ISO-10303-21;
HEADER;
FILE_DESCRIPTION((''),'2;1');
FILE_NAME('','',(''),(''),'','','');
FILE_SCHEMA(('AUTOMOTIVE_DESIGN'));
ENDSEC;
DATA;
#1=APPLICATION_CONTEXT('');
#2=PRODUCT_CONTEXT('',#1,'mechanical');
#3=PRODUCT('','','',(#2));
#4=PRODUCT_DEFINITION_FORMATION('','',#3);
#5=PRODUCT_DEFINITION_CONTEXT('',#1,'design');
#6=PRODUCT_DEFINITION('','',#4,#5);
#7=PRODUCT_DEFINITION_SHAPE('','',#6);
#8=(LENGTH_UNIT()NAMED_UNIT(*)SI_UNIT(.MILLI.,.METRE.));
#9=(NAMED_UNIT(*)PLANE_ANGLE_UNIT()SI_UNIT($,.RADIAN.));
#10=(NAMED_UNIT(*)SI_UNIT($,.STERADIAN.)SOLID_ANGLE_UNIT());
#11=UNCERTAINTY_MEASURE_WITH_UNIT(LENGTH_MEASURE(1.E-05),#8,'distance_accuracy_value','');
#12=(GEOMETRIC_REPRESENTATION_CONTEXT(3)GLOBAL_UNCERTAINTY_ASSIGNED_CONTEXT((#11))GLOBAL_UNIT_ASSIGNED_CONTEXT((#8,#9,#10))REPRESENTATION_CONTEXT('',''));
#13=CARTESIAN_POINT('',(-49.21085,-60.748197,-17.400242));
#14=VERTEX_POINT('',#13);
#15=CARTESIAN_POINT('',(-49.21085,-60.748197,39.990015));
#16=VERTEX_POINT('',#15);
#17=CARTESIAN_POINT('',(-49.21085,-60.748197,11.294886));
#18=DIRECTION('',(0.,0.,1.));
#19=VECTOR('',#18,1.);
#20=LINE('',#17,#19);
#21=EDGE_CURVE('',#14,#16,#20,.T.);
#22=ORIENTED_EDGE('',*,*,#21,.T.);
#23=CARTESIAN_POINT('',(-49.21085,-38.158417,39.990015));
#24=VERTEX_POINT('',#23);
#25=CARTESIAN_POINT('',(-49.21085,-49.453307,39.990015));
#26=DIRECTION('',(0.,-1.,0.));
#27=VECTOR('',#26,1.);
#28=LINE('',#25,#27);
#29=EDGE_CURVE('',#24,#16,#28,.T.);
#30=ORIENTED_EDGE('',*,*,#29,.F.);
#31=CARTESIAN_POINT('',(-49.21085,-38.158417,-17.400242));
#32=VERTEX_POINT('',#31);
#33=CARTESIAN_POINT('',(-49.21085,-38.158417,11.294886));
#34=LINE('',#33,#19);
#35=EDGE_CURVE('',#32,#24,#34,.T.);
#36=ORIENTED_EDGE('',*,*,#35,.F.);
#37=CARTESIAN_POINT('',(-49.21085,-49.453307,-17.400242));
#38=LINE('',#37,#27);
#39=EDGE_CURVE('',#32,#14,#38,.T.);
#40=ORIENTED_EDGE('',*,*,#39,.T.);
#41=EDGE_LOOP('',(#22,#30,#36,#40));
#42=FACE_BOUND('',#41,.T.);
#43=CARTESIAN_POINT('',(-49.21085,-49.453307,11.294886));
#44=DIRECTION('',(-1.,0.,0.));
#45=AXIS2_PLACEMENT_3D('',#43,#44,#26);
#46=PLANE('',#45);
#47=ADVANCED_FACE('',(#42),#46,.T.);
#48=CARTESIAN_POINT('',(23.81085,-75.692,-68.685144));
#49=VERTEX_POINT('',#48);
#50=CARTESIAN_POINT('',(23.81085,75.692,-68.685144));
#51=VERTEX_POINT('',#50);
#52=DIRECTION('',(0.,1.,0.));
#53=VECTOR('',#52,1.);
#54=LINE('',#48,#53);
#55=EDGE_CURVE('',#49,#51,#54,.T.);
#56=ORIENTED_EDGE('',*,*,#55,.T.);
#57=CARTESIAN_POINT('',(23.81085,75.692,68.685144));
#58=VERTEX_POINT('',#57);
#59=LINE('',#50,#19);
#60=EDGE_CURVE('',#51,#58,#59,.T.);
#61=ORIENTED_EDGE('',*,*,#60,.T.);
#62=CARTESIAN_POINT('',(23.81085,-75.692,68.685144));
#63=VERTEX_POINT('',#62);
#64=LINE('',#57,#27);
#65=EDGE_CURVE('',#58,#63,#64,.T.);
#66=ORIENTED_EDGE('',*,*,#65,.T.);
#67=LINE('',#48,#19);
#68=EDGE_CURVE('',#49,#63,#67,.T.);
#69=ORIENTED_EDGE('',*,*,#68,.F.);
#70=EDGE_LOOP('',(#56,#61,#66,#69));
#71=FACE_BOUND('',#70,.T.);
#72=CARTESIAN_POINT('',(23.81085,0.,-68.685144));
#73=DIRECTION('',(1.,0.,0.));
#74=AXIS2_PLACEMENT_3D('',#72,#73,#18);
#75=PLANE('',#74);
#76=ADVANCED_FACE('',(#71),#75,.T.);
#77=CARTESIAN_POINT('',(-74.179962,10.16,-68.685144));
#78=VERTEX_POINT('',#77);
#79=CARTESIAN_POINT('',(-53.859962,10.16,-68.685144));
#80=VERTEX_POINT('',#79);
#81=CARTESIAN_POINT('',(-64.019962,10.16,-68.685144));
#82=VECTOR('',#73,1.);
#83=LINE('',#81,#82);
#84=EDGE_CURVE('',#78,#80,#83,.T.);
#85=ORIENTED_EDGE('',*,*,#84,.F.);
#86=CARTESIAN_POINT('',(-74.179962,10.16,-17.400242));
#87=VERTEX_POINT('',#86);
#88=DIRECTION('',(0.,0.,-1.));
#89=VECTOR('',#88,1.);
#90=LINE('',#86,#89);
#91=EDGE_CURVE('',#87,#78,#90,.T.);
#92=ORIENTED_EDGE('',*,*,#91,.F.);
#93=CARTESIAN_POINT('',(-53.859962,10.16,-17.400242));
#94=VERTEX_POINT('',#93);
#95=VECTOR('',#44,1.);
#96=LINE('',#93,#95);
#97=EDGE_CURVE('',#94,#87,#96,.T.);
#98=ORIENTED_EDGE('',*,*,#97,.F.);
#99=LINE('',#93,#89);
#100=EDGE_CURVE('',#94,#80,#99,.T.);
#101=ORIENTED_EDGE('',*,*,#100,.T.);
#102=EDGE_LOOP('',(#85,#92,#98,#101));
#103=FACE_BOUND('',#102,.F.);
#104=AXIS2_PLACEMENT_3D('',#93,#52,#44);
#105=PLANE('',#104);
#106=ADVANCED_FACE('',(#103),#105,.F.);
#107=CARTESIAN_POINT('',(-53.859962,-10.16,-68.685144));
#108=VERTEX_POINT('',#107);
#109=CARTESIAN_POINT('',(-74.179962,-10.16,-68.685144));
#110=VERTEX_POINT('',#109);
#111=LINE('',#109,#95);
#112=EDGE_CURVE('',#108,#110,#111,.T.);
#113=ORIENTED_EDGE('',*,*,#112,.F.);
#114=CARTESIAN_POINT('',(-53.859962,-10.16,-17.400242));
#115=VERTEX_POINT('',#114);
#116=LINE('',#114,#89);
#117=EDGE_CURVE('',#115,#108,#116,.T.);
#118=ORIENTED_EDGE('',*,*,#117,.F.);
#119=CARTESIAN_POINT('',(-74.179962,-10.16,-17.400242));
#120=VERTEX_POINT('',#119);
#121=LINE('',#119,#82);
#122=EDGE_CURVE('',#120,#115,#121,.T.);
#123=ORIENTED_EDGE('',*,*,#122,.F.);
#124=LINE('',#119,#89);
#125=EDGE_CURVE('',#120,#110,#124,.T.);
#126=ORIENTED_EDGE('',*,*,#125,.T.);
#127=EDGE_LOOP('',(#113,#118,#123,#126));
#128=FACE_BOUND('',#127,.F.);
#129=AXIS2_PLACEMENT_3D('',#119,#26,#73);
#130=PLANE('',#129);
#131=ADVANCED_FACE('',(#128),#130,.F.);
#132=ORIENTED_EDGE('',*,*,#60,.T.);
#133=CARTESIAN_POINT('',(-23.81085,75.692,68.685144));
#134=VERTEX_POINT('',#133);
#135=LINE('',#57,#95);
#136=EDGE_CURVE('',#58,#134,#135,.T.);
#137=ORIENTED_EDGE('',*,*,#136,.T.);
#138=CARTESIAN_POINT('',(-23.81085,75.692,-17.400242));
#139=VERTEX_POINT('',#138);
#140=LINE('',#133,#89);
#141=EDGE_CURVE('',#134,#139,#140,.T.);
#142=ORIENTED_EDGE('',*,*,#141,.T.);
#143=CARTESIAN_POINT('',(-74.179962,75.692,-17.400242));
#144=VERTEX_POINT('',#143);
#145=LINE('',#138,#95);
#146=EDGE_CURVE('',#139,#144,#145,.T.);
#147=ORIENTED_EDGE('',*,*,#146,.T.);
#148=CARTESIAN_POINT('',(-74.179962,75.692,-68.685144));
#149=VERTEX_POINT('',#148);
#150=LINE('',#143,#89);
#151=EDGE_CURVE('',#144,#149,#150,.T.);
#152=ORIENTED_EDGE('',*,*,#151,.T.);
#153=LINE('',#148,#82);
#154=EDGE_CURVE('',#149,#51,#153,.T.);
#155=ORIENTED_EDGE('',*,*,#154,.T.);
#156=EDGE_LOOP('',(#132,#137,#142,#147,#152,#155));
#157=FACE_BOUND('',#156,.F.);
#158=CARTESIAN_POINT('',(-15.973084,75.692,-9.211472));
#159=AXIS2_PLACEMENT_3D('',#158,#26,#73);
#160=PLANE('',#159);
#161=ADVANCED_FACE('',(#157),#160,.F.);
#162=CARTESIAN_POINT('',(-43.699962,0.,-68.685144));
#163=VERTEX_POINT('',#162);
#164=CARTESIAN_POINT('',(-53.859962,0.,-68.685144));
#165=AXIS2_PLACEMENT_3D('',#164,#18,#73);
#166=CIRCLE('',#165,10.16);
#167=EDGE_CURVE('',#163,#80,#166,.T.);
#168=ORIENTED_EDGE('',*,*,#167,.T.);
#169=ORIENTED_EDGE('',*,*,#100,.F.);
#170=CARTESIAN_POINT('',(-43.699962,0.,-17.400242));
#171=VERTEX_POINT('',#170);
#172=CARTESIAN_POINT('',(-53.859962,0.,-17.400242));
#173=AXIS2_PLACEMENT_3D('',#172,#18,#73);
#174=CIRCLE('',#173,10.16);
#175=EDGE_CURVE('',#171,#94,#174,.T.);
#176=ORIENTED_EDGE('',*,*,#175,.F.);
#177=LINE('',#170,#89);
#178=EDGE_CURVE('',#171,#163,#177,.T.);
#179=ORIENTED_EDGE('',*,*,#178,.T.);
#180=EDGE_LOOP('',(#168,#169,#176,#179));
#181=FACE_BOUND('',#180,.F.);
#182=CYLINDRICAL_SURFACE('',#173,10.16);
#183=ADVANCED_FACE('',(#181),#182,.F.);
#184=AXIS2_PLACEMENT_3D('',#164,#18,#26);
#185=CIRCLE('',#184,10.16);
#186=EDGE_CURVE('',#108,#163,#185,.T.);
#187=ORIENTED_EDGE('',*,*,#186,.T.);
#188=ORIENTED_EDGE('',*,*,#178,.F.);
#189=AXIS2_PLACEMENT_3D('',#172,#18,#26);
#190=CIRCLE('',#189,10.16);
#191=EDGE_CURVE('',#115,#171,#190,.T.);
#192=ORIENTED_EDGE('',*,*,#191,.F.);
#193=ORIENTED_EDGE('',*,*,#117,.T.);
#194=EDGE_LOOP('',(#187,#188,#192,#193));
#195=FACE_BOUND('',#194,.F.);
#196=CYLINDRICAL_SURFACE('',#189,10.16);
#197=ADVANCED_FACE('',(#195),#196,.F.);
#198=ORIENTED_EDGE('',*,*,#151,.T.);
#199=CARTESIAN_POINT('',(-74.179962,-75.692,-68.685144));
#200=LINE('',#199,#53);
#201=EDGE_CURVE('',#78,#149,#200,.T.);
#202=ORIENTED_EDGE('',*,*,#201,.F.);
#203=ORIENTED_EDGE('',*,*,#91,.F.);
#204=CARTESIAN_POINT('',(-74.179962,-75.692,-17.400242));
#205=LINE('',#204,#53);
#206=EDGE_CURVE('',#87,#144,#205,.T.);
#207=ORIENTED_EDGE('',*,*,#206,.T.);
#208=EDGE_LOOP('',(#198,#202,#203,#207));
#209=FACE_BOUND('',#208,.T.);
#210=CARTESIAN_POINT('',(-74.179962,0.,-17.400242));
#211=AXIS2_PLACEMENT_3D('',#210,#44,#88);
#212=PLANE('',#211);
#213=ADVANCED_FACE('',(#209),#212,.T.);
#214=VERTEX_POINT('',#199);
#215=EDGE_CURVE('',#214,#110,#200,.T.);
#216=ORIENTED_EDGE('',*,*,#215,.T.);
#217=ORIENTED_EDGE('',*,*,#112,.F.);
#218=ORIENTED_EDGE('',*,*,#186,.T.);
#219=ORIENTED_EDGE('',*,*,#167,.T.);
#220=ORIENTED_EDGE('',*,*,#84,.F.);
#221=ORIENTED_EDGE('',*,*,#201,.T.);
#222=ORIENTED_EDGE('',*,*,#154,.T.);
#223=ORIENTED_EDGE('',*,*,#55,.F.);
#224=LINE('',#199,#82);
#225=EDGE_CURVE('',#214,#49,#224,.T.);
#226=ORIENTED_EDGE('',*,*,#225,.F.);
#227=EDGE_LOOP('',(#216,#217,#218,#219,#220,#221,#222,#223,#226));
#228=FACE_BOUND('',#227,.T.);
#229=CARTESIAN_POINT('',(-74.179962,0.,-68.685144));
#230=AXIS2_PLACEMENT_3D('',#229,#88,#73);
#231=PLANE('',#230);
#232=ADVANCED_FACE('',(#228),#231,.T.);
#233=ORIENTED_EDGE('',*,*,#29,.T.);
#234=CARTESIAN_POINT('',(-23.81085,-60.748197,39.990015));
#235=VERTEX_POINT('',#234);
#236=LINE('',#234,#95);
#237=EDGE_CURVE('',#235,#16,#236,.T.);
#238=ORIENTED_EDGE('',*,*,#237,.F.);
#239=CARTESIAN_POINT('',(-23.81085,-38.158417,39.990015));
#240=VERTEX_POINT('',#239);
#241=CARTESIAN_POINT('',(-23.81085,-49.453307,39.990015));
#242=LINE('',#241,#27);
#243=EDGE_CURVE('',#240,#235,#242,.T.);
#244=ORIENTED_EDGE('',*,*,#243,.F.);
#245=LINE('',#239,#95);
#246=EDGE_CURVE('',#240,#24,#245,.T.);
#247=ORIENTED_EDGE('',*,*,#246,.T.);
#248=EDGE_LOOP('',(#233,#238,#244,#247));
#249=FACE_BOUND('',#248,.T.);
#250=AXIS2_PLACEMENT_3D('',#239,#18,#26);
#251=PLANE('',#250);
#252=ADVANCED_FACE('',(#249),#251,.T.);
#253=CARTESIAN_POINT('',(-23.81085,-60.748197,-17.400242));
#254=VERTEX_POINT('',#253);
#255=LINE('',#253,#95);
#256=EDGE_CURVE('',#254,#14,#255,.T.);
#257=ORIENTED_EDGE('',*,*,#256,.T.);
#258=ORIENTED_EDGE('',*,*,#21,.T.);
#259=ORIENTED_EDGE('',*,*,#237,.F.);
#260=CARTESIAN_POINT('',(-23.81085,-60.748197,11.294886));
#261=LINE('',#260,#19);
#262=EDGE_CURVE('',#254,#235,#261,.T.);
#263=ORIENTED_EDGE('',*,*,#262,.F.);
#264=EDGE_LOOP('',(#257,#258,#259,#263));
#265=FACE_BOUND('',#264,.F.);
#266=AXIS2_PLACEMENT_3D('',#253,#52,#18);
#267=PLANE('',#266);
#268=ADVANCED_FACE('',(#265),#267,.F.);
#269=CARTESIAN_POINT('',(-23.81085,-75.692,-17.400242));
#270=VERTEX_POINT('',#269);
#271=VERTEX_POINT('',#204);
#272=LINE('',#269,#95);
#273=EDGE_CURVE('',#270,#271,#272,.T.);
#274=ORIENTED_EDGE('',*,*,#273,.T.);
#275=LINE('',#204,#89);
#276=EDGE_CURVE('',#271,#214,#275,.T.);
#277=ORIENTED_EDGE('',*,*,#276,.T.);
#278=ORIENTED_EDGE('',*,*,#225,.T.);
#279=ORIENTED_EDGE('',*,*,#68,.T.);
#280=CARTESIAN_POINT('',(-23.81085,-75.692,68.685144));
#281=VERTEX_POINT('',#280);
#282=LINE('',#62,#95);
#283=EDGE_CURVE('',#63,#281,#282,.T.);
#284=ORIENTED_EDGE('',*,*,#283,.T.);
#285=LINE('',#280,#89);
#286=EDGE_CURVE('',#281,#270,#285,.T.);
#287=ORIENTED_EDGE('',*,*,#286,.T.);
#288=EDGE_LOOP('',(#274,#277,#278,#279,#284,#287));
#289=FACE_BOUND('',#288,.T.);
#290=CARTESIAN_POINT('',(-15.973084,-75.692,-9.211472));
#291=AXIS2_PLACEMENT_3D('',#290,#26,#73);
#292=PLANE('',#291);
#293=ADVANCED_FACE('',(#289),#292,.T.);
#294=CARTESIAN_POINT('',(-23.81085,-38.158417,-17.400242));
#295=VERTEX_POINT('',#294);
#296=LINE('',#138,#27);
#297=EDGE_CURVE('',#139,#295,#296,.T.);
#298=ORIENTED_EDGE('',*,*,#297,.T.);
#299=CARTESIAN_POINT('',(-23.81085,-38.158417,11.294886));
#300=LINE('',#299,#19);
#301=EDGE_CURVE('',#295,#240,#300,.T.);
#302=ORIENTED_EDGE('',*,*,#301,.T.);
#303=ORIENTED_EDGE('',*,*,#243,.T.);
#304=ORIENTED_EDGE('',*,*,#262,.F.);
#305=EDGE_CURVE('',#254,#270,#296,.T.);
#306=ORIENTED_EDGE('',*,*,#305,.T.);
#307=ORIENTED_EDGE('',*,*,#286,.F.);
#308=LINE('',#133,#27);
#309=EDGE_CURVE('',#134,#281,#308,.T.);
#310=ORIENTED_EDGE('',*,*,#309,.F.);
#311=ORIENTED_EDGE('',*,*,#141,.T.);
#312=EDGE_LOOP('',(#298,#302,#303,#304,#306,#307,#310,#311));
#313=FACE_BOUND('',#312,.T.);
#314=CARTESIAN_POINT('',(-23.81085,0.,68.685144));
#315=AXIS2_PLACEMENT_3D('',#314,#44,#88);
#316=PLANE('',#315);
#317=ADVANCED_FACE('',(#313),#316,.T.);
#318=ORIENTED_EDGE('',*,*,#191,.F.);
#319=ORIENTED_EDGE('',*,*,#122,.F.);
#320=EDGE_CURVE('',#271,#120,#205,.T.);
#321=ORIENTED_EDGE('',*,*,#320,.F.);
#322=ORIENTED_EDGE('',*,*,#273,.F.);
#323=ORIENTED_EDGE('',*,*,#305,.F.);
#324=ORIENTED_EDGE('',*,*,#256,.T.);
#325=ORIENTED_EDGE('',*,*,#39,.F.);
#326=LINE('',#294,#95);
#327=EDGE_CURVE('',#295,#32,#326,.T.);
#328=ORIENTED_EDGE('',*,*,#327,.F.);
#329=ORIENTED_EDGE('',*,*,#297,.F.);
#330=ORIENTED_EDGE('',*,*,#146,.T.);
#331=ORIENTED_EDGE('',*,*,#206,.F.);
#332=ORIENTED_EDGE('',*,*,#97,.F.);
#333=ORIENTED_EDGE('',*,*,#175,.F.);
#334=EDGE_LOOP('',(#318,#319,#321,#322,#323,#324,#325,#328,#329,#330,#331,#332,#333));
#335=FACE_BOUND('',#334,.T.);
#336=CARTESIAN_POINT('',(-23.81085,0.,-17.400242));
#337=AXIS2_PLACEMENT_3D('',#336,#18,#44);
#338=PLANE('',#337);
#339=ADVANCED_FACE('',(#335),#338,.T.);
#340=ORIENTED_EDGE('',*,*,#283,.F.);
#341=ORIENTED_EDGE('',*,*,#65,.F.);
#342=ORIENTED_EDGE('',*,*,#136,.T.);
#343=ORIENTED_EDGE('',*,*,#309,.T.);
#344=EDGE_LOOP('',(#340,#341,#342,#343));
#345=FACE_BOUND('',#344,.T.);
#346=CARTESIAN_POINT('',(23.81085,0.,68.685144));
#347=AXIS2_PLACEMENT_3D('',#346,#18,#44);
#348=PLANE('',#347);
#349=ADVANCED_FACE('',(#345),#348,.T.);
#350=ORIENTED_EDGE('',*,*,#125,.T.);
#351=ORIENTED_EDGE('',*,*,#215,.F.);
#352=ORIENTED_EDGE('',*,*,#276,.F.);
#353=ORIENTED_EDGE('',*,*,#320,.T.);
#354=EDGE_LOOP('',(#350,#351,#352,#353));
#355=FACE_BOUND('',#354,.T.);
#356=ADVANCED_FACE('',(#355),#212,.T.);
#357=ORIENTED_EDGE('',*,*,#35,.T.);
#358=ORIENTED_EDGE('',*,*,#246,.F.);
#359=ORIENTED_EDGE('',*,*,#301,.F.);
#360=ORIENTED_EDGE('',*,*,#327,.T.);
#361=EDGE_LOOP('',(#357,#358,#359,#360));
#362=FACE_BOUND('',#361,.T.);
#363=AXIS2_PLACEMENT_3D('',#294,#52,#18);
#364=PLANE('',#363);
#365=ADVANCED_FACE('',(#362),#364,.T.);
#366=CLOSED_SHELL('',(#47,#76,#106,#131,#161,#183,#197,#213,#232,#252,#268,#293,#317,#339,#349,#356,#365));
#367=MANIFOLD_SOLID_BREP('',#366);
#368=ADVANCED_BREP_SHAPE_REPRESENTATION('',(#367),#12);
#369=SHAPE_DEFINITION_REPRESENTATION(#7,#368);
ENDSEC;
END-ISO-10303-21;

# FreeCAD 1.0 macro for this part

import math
import FreeCAD as App
import Part
import Sketcher

V = App.Vector
Q = App.Units.Quantity

doc = App.newDocument("Part")
params = doc.addObject("Spreadsheet::Sheet", "Params")
for row, (alias, value) in enumerate([
    ("pad1_length", "5.96 in"),
    ("sketch2_radius", "0.4 in"),
    ("pad2_length", "1 in"),
], start=1):
    params.set(f"A{row}", alias)
    params.set(f"B{row}", "=" + value)
    params.setAlias(f"B{row}", alias)

body = doc.addObject("PartDesign::Body", "Body")

# Sketch on XZ plane
sketch1 = doc.addObject("Sketcher::SketchObject", "Sketch")
body.addObject(sketch1)
sketch1.AttachmentSupport = (doc.XZ_Plane, [""])
sketch1.MapMode = "FlatFace"
sketch1.addGeometry(Part.LineSegment(V(24, -69, 0), V(24, 69, 0)), False)
sketch1.addGeometry(Part.LineSegment(V(24, 69, 0), V(-24, 69, 0)), False)
sketch1.addGeometry(Part.LineSegment(V(-24, 69, 0), V(-24, -17, 0)), False)
sketch1.addGeometry(Part.LineSegment(V(-24, -17, 0), V(-74, -17, 0)), False)
sketch1.addGeometry(Part.LineSegment(V(-74, -17, 0), V(-74, -69, 0)), False)
sketch1.addGeometry(Part.LineSegment(V(-74, -69, 0), V(24, -69, 0)), False)
sketch1.addConstraint(Sketcher.Constraint("Coincident", 0, 2, 1, 1))
sketch1.addConstraint(Sketcher.Constraint("Coincident", 1, 2, 2, 1))
sketch1.addConstraint(Sketcher.Constraint("Coincident", 2, 2, 3, 1))
sketch1.addConstraint(Sketcher.Constraint("Coincident", 3, 2, 4, 1))
sketch1.addConstraint(Sketcher.Constraint("Coincident", 4, 2, 5, 1))
sketch1.addConstraint(Sketcher.Constraint("Coincident", 5, 2, 0, 1))
sketch1.addConstraint(Sketcher.Constraint("Vertical", 0))
sketch1.addConstraint(Sketcher.Constraint("Horizontal", 1))
sketch1.addConstraint(Sketcher.Constraint("Vertical", 2))
sketch1.addConstraint(Sketcher.Constraint("Horizontal", 3))
sketch1.addConstraint(Sketcher.Constraint("Vertical", 4))
sketch1.addConstraint(Sketcher.Constraint("Horizontal", 5))
sketch1.addConstraint(Sketcher.Constraint("Symmetric", 1, 2, 5, 2, -1, 1))
sketch1.addConstraint(Sketcher.Constraint("DistanceX", 1, 2, 1, 1, Q("47.621701 mm")))
sketch1.addConstraint(Sketcher.Constraint("DistanceY", 4, 2, 4, 1, Q("51.284902 mm")))
sketch1.addConstraint(Sketcher.Constraint("DistanceX", 3, 2, 3, 1, Q("50.369112 mm")))
sketch1.addConstraint(Sketcher.Constraint("DistanceY", 0, 1, 0, 2, Q("137.370288 mm")))
pad1 = doc.addObject("PartDesign::Pad", "Pad")
body.addObject(pad1)
pad1.Profile = sketch1
pad1.setExpression("Length", "Params.pad1_length")
pad1.Midplane = True

# Sketch on XY plane
sketch2 = doc.addObject("Sketcher::SketchObject", "Sketch001")
body.addObject(sketch2)
sketch2.AttachmentSupport = (doc.XY_Plane, [""])
sketch2.MapMode = "FlatFace"
sketch2.AttachmentOffset = App.Placement(V(0, 0, -17.400242), App.Rotation())
sketch2.addGeometry(Part.ArcOfCircle(Part.Circle(V(-54, 0, 0), V(0, 0, 1), 10), math.radians(-90), math.radians(0)), False)
sketch2.addGeometry(Part.ArcOfCircle(Part.Circle(V(-54, 0, 0), V(0, 0, 1), 10), math.radians(0), math.radians(90)), False)
sketch2.addGeometry(Part.LineSegment(V(-54, 10, 0), V(-74, 10, 0)), False)
sketch2.addGeometry(Part.LineSegment(V(-74, 10, 0), V(-74, -10, 0)), False)
sketch2.addGeometry(Part.LineSegment(V(-74, -10, 0), V(-54, -10, 0)), False)
sketch2.addConstraint(Sketcher.Constraint("Tangent", 0, 2, 1, 1))
sketch2.addConstraint(Sketcher.Constraint("Tangent", 1, 2, 2, 1))
sketch2.addConstraint(Sketcher.Constraint("Coincident", 2, 2, 3, 1))
sketch2.addConstraint(Sketcher.Constraint("Coincident", 3, 2, 4, 1))
sketch2.addConstraint(Sketcher.Constraint("Tangent", 4, 2, 0, 1))
sketch2.addConstraint(Sketcher.Constraint("Horizontal", 2))
sketch2.addConstraint(Sketcher.Constraint("Vertical", 3))
sketch2.addConstraint(Sketcher.Constraint("Horizontal", 4))
sketch2.addConstraint(Sketcher.Constraint("Equal", 0, 1))
sketch2.addConstraint(Sketcher.Constraint("PointOnObject", 0, 3, -1))
sketch2.addConstraint(Sketcher.Constraint("PointOnObject", 0, 2, -1))
sketch2.addConstraint(Sketcher.Constraint("Equal", 4, 3))
sketch2.addConstraint(Sketcher.Constraint("Radius", 0, Q("0.4 in")))
sketch2.addConstraint(Sketcher.Constraint("DistanceX", 0, 3, -1, 1, Q("53.859962 mm")))
sketch2.setExpression("Constraints[12]", "Params.sketch2_radius")
pocket1 = doc.addObject("PartDesign::Pocket", "Pocket")
body.addObject(pocket1)
pocket1.Profile = sketch2
pocket1.Type = "ThroughAll"

# Sketch on YZ plane
sketch3 = doc.addObject("Sketcher::SketchObject", "Sketch002")
body.addObject(sketch3)
sketch3.AttachmentSupport = (doc.YZ_Plane, [""])
sketch3.MapMode = "FlatFace"
sketch3.AttachmentOffset = App.Placement(V(0, 0, -23.81085), App.Rotation())
sketch3.addGeometry(Part.LineSegment(V(-38, 40, 0), V(-38, -17, 0)), False)
sketch3.addGeometry(Part.LineSegment(V(-38, -17, 0), V(-61, -17, 0)), False)
sketch3.addGeometry(Part.LineSegment(V(-61, -17, 0), V(-61, 40, 0)), False)
sketch3.addGeometry(Part.LineSegment(V(-61, 40, 0), V(-38, 40, 0)), False)
sketch3.addConstraint(Sketcher.Constraint("Coincident", 0, 2, 1, 1))
sketch3.addConstraint(Sketcher.Constraint("Coincident", 1, 2, 2, 1))
sketch3.addConstraint(Sketcher.Constraint("Coincident", 2, 2, 3, 1))
sketch3.addConstraint(Sketcher.Constraint("Coincident", 3, 2, 0, 1))
sketch3.addConstraint(Sketcher.Constraint("Vertical", 0))
sketch3.addConstraint(Sketcher.Constraint("Horizontal", 1))
sketch3.addConstraint(Sketcher.Constraint("Vertical", 2))
sketch3.addConstraint(Sketcher.Constraint("Horizontal", 3))
sketch3.addConstraint(Sketcher.Constraint("DistanceX", 0, 2, -1, 1, Q("1.5022999 in")))
sketch3.addConstraint(Sketcher.Constraint("DistanceX", 1, 2, 1, 1, Q("22.58978 mm")))
sketch3.addConstraint(Sketcher.Constraint("DistanceY", 0, 2, 0, 1, Q("57.390258 mm")))
sketch3.addConstraint(Sketcher.Constraint("DistanceY", 0, 2, -1, 1, Q("17.400242 mm")))
pad2 = doc.addObject("PartDesign::Pad", "Pad001")
body.addObject(pad2)
pad2.Profile = sketch3
pad2.setExpression("Length", "Params.pad2_length")
pad2.Reversed = True

doc.recompute()
